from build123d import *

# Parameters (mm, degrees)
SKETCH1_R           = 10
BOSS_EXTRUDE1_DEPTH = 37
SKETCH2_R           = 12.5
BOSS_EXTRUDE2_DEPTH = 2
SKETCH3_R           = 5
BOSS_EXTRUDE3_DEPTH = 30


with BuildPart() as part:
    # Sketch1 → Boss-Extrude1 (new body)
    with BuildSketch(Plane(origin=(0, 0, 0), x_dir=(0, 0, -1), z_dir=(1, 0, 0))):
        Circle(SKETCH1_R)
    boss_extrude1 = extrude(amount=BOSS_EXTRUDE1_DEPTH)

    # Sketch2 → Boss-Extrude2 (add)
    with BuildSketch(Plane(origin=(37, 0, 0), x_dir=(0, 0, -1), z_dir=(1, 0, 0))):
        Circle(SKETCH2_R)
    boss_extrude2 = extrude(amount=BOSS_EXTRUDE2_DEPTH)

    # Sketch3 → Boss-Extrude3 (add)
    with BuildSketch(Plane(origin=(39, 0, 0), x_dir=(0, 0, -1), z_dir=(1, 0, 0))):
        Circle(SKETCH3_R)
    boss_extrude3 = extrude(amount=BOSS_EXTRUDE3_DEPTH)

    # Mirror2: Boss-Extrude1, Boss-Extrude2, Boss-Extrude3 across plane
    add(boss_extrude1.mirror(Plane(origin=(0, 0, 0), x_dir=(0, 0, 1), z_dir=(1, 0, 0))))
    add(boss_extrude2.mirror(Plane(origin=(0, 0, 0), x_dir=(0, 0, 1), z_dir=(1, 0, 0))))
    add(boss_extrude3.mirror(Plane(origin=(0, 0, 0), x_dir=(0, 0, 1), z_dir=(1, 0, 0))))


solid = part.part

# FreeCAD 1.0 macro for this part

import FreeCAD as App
import Part
import Sketcher

doc = App.newDocument("Part")
params = doc.addObject("Spreadsheet::Sheet", "Params")
for row, (alias, value) in enumerate([
    ("sketch1_diameter", "20 mm"),
    ("pad1_length", "37 mm"),
    ("sketch2_diameter", "25 mm"),
    ("pad2_length", "2 mm"),
    ("sketch3_diameter", "10 mm"),
    ("pad3_length", "30 mm"),
], start=1):
    params.set(f"A{row}", alias)
    params.set(f"B{row}", "=" + value)
    params.setAlias(f"B{row}", alias)

body = doc.addObject("PartDesign::Body", "Body")

# Sketch on YZ plane
sketch1 = doc.addObject("Sketcher::SketchObject", "Sketch")
body.addObject(sketch1)
sketch1.AttachmentSupport = (doc.YZ_Plane, [""])
sketch1.MapMode = "FlatFace"
sketch1.addGeometry(Part.Circle(App.Vector(0, 0, 0), App.Vector(0, 0, 1), 10), False)
sketch1.addConstraint([
    Sketcher.Constraint("Coincident", 0, 3, -1, 1),
    Sketcher.Constraint("Diameter", 0, 20.0),
])
sketch1.setExpression("Constraints[1]", "Params.sketch1_diameter")
pad1 = doc.addObject("PartDesign::Pad", "Pad")
body.addObject(pad1)
pad1.Profile = sketch1
pad1.setExpression("Length", "Params.pad1_length")

# Sketch on YZ plane
sketch2 = doc.addObject("Sketcher::SketchObject", "Sketch001")
body.addObject(sketch2)
sketch2.AttachmentSupport = (doc.YZ_Plane, [""])
sketch2.MapMode = "FlatFace"
sketch2.AttachmentOffset = App.Placement(App.Vector(0, 0, 37), App.Rotation())
sketch2.addGeometry(Part.Circle(App.Vector(0, 0, 0), App.Vector(0, 0, 1), 12), False)
sketch2.addConstraint([
    Sketcher.Constraint("Coincident", 0, 3, -1, 1),
    Sketcher.Constraint("Diameter", 0, 25.0),
])
sketch2.setExpression("Constraints[1]", "Params.sketch2_diameter")
pad2 = doc.addObject("PartDesign::Pad", "Pad001")
body.addObject(pad2)
pad2.Profile = sketch2
pad2.setExpression("Length", "Params.pad2_length")

# Sketch on YZ plane
sketch3 = doc.addObject("Sketcher::SketchObject", "Sketch002")
body.addObject(sketch3)
sketch3.AttachmentSupport = (doc.YZ_Plane, [""])
sketch3.MapMode = "FlatFace"
sketch3.AttachmentOffset = App.Placement(App.Vector(0, 0, 39), App.Rotation())
sketch3.addGeometry(Part.Circle(App.Vector(0, 0, 0), App.Vector(0, 0, 1), 5), False)
sketch3.addConstraint([
    Sketcher.Constraint("Coincident", 0, 3, -1, 1),
    Sketcher.Constraint("Diameter", 0, 10.0),
])
sketch3.setExpression("Constraints[1]", "Params.sketch3_diameter")
pad3 = doc.addObject("PartDesign::Pad", "Pad002")
body.addObject(pad3)
pad3.Profile = sketch3
pad3.setExpression("Length", "Params.pad3_length")
doc.recompute()

mirrored = doc.addObject("PartDesign::Mirrored", "Mirrored")
body.addObject(mirrored)
mirrored.Originals = [pad1, pad2, pad3]
mirrored.MirrorPlane = (doc.YZ_Plane, [""])
body.Tip = mirrored

doc.recompute()
